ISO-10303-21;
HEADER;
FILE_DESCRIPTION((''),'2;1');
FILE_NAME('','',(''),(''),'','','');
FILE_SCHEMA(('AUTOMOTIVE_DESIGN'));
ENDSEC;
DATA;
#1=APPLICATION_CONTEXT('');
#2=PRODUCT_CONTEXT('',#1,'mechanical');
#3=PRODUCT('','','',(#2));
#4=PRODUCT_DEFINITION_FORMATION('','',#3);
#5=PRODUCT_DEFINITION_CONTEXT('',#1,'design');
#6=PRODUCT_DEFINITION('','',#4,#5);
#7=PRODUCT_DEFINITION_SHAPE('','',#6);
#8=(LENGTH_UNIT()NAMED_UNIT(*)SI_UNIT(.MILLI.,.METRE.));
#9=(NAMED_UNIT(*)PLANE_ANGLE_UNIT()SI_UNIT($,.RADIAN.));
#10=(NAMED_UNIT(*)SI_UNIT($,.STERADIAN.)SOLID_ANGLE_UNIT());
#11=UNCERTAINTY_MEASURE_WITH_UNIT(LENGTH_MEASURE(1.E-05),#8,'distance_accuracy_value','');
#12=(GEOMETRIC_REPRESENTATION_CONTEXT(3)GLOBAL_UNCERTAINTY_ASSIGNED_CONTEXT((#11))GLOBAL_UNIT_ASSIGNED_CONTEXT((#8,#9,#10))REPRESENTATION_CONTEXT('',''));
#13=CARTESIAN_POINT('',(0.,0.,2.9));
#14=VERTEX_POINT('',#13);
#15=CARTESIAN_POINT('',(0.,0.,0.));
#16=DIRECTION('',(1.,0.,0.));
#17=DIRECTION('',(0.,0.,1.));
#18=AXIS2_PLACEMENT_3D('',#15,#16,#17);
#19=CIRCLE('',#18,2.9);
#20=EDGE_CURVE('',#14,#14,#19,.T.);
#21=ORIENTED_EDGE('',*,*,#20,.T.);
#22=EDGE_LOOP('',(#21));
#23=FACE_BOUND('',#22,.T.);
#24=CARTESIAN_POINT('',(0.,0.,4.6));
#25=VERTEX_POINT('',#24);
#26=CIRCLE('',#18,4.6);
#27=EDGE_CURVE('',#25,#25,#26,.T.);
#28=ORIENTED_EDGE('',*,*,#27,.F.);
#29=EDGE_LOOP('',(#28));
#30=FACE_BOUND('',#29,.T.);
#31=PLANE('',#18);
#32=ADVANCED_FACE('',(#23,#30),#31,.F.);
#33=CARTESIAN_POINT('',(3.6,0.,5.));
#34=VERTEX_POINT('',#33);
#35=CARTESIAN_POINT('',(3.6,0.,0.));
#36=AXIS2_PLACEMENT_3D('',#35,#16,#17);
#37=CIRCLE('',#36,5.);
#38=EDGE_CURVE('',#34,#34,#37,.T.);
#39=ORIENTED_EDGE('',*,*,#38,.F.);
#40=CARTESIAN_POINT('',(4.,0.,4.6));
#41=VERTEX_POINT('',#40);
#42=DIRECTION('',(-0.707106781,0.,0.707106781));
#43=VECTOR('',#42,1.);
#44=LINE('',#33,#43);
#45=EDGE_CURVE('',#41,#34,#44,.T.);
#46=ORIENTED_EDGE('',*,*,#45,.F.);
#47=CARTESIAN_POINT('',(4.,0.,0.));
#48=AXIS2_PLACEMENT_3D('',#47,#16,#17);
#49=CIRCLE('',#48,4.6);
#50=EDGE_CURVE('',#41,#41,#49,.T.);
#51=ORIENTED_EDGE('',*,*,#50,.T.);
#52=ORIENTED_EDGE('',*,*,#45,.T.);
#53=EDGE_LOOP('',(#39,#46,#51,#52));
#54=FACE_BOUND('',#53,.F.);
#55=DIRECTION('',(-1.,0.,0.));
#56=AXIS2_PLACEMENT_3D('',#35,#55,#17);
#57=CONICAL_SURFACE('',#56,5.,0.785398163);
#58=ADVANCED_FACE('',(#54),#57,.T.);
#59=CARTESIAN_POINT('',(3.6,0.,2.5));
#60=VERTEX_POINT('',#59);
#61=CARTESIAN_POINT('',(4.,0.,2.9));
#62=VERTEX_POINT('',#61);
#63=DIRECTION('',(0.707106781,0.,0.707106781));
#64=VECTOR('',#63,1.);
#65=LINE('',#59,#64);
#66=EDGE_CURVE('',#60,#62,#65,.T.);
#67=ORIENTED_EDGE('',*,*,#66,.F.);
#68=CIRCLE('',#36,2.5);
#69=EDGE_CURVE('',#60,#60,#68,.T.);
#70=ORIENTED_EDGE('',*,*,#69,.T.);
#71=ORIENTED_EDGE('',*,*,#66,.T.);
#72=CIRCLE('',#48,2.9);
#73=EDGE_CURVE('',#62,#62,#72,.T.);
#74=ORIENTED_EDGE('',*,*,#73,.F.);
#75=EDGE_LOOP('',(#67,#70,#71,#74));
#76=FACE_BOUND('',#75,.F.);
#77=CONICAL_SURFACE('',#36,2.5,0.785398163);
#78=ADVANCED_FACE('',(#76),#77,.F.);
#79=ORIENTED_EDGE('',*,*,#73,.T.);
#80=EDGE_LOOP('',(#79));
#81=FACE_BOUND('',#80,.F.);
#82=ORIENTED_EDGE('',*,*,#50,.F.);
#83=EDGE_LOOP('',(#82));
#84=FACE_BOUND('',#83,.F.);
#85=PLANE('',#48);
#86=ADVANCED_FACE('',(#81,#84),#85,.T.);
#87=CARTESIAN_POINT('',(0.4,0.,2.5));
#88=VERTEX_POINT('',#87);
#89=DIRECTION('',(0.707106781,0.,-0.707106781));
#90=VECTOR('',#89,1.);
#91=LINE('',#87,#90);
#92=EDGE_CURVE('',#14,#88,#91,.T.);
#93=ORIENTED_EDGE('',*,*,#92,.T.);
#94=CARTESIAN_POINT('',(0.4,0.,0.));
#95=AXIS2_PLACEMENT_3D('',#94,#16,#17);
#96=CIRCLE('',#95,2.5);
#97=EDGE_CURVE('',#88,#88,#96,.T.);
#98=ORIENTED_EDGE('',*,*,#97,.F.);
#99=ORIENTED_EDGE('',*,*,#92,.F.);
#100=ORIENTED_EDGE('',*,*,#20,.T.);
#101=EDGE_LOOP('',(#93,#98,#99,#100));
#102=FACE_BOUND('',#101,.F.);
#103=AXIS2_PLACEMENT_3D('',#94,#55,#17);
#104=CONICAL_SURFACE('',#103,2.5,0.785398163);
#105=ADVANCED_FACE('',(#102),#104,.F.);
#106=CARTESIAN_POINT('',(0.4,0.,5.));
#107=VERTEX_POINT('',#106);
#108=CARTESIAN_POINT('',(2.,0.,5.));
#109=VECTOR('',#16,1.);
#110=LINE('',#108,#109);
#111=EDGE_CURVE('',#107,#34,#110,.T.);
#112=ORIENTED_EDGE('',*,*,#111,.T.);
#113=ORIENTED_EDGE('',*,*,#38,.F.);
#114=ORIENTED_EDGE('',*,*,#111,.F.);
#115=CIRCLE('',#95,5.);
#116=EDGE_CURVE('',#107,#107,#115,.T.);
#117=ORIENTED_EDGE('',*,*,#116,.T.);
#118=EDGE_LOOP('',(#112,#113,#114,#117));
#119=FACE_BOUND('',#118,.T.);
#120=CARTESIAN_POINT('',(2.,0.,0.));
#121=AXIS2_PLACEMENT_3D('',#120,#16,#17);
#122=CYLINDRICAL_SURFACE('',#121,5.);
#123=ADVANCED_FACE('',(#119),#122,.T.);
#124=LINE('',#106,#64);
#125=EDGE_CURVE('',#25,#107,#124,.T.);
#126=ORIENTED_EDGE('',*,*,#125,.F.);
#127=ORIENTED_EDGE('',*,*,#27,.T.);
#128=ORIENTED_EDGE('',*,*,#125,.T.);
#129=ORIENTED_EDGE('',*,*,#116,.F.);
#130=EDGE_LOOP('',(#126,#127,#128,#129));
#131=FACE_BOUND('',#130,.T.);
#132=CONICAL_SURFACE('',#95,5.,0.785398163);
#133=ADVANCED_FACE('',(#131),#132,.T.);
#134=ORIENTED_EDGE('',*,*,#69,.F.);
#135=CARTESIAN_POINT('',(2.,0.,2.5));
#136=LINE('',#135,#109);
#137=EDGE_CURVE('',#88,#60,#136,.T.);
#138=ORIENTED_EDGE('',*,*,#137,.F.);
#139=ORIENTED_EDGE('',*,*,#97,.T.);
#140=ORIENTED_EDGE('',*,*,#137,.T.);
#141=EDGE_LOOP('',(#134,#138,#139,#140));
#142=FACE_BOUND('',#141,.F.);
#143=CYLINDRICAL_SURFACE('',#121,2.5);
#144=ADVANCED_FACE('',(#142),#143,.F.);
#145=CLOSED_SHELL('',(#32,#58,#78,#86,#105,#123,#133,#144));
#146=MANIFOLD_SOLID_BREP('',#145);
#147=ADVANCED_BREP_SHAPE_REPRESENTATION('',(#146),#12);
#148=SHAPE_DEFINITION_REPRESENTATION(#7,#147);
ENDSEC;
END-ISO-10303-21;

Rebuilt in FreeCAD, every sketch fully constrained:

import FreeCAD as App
import Part
import Sketcher
Q = App.Units.Quantity


def add_polygon(sketch, points):
    """Adds a closed chain of lines whose ends are joined by coincident constraints."""
    first, n = sketch.GeometryCount, len(points)
    for a, b in zip(points, points[1:] + points[:1]):
        sketch.addGeometry(Part.LineSegment(App.Vector(*a, 0), App.Vector(*b, 0)), False)
    for i in range(n):
        sketch.addConstraint(Sketcher.Constraint("Coincident", first + i, 2, first + (i + 1) % n, 1))

doc = App.newDocument("Part")
body = doc.addObject("PartDesign::Body", "Body")

# Sketch on XZ plane
sketch1 = body.newObject("Sketcher::SketchObject", "Sketch")
sketch1.AttachmentSupport = (doc.getObject("XZ_Plane"), [""])
sketch1.MapMode = "FlatFace"
add_polygon(sketch1, [(0, 5), (0, 2.5), (4, 2.5), (4, 5)])  # lines 0-3
sketch1.addConstraint(Sketcher.Constraint("Vertical", 0))
sketch1.addConstraint(Sketcher.Constraint("Horizontal", 1))
sketch1.addConstraint(Sketcher.Constraint("Vertical", 2))
sketch1.addConstraint(Sketcher.Constraint("Horizontal", 3))
sketch1.addConstraint(Sketcher.Constraint("PointOnObject", 0, 2, -2))
sketch1.addConstraint(Sketcher.Constraint("DistanceX", 1, 1, 1, 2, Q("4 mm")))
sketch1.addConstraint(Sketcher.Constraint("DistanceY", 0, 2, 0, 1, Q("2.5 mm")))
sketch1.addConstraint(Sketcher.Constraint("DistanceY", -1, 1, 2, 2, Q("5 mm")))
revolution = body.newObject("PartDesign::Revolution", "Revolution")
revolution.Profile = sketch1
revolution.ReferenceAxis = (sketch1, ["H_Axis"])
revolution.Angle = 360
doc.recompute()

chamfer = body.newObject("PartDesign::Chamfer", "Chamfer")
chamfer.Base = (revolution, ["Edge1"])
chamfer.UseAllEdges = True
chamfer.Size = 0.4

doc.recompute()
